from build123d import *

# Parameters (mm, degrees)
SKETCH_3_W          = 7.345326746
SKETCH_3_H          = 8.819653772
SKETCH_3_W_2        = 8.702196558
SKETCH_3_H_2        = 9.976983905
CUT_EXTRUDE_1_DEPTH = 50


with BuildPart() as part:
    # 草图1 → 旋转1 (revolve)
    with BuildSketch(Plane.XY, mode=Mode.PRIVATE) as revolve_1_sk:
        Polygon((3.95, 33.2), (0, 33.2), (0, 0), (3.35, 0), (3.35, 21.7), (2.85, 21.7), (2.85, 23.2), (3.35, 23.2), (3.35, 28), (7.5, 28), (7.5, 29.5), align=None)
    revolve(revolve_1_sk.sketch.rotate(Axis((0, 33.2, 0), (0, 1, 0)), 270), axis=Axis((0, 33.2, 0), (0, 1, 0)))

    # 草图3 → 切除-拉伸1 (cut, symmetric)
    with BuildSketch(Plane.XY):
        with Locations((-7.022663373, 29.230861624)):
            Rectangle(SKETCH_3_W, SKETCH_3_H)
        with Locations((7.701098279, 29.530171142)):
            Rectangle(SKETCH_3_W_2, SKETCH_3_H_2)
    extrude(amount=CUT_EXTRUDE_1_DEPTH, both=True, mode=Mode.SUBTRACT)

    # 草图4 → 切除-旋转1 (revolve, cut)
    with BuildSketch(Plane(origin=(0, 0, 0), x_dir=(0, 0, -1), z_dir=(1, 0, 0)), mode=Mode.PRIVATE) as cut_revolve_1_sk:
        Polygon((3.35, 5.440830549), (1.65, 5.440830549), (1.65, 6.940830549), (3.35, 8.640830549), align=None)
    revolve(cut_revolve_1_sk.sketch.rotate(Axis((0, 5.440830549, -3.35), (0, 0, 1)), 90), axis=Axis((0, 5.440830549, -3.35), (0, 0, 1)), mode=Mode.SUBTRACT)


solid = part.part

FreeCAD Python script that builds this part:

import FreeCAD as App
import Part
import Sketcher
from FreeCAD import Vector
Q = App.Units.Quantity


def add_polygon(sketch, points):
    """Adds a closed chain of lines whose ends are joined by coincident constraints."""
    first, n = sketch.GeometryCount, len(points)
    for a, b in zip(points, points[1:] + points[:1]):
        sketch.addGeometry(Part.LineSegment(App.Vector(*a, 0), App.Vector(*b, 0)), False)
    for i in range(n):
        sketch.addConstraint(Sketcher.Constraint("Coincident", first + i, 2, first + (i + 1) % n, 1))

doc = App.newDocument("Part")
params = doc.addObject("Spreadsheet::Sheet", "Params")
for row, (alias, value) in enumerate([
    ("sketch1_width", "0.5 mm"),
    ("sketch1_height", "33.2 mm"),
    ("sketch1_height2", "21.7 mm"),
    ("sketch1_height3", "1.5 mm"),
    ("sketch1_height4", "4.8 mm"),
    ("revolution_angle", "360 deg"),
    ("pocket1_length", "100 mm"),
    ("sketch3_width", "3.2 mm"),
    ("sketch3_width2", "1.5 mm"),
    ("groove_angle", "360 deg"),
], start=1):
    params.set(f"A{row}", alias)
    params.set(f"B{row}", "=" + value)
    params.setAlias(f"B{row}", alias)

body = doc.addObject("PartDesign::Body", "Body")

sketch1 = body.newObject("Sketcher::SketchObject", "Sketch")
sketch1.AttachmentSupport = (doc.getObject("XY_Plane"), [""])
sketch1.MapMode = "FlatFace"
add_polygon(sketch1, [(4, 33.2), (0, 33.2), (0, 0), (3.4, 0), (3.4, 21.7), (2.9, 21.7), (2.9, 23.2), (3.4, 23.2), (3.4, 28), (7.5, 28), (7.5, 29.5)])
sketch1.addConstraint([
    Sketcher.Constraint("Horizontal", 0),
    Sketcher.Constraint("Vertical", 1),
    Sketcher.Constraint("Horizontal", 2),
    Sketcher.Constraint("Vertical", 3),
    Sketcher.Constraint("Horizontal", 4),
    Sketcher.Constraint("Vertical", 5),
    Sketcher.Constraint("Horizontal", 6),
    Sketcher.Constraint("Vertical", 7),
    Sketcher.Constraint("Horizontal", 8),
    Sketcher.Constraint("Vertical", 9),
    Sketcher.Constraint("Coincident", 1, 2, -1, 1),
    Sketcher.Constraint("Vertical", 3, 2, 6, 2),
    Sketcher.Constraint("Equal", 5, 9),
    Sketcher.Constraint("DistanceX", 4, 2, 4, 1, 0.5),
    Sketcher.Constraint("DistanceY", 1, 2, 1, 1, 33.2),
    Sketcher.Constraint("DistanceY", 3, 1, 3, 2, 21.7),
    Sketcher.Constraint("DistanceY", 5, 1, 5, 2, 1.5),
    Sketcher.Constraint("DistanceY", 7, 1, 7, 2, 4.8),
    Sketcher.Constraint("DistanceX", 0, 2, 0, 1, 3.95),
    Sketcher.Constraint("DistanceX", 2, 1, 2, 2, 3.35),
    Sketcher.Constraint("DistanceX", 8, 1, 8, 2, 4.15),
])
sketch1.setExpression("Constraints[24]", "Params.sketch1_width")
sketch1.setExpression("Constraints[25]", "Params.sketch1_height")
sketch1.setExpression("Constraints[26]", "Params.sketch1_height2")
sketch1.setExpression("Constraints[27]", "Params.sketch1_height3")
sketch1.setExpression("Constraints[28]", "Params.sketch1_height4")
revolution = body.newObject("PartDesign::Revolution", "Revolution")
revolution.Profile = sketch1
revolution.ReferenceAxis = (sketch1, ["V_Axis"])
revolution.setExpression("Angle", "Params.revolution_angle")

sketch2 = body.newObject("Sketcher::SketchObject", "Sketch001")
sketch2.AttachmentSupport = (doc.getObject("XY_Plane"), [""])
sketch2.MapMode = "FlatFace"
add_polygon(sketch2, [(-11, 34), (-11, 25), (-3, 25), (-3, 34)])
add_polygon(sketch2, [(3, 35), (3, 25), (12, 25), (12, 35)])
sketch2.addConstraint([
    Sketcher.Constraint("Vertical", 0),
    Sketcher.Constraint("Horizontal", 1),
    Sketcher.Constraint("Vertical", 2),
    Sketcher.Constraint("Horizontal", 3),
    Sketcher.Constraint("Vertical", 4),
    Sketcher.Constraint("Horizontal", 5),
    Sketcher.Constraint("Vertical", 6),
    Sketcher.Constraint("Horizontal", 7),
    Sketcher.Constraint("DistanceX", 1, 2, 4, 2, 6.7),
    Sketcher.Constraint("DistanceX", 1, 2, -1, 1, 3.35),
    Sketcher.Constraint("DistanceX", 1, 1, 1, 2, 7.345327),
    Sketcher.Constraint("DistanceX", 5, 1, 5, 2, 8.702197),
    Sketcher.Constraint("DistanceY", 0, 2, 0, 1, 8.819654),
    Sketcher.Constraint("DistanceY", 4, 2, 4, 1, 9.976984),
    Sketcher.Constraint("DistanceY", -1, 1, 2, 2, 33.640689),
    Sketcher.Constraint("DistanceY", -1, 1, 4, 2, 24.541679),
])
pocket1 = body.newObject("PartDesign::Pocket", "Pocket")
pocket1.Profile = sketch2
pocket1.setExpression("Length", "Params.pocket1_length")
pocket1.Midplane = True

sketch3 = body.newObject("Sketcher::SketchObject", "Sketch002")
sketch3.AttachmentSupport = (doc.getObject("YZ_Plane"), [""])
sketch3.MapMode = "FlatFace"
add_polygon(sketch3, [(5.4, -1.6), (5.4, -3.4), (8.6, -3.4), (6.9, -1.6)])
sketch3.addGeometry(Part.LineSegment(Vector(5.4, -3.4, 0), Vector(5.4, -1.6, 0)), True)
sketch3.addConstraint([
    Sketcher.Constraint("Vertical", 0),
    Sketcher.Constraint("Horizontal", 1),
    Sketcher.Constraint("Horizontal", 3),
    Sketcher.Constraint("Vertical", 4),
    Sketcher.Constraint("Coincident", 4, 1, 0, 2),
    Sketcher.Constraint("Horizontal", 2, 2, 4, 2),
    Sketcher.Constraint("Angle", 2, Q("135 deg")),
    Sketcher.Constraint("DistanceX", 1, 1, 1, 2, 3.2),
    Sketcher.Constraint("DistanceX", 3, 2, 3, 1, 1.5),
    Sketcher.Constraint("DistanceY", 0, 2, -1, 1, 3.35),
    Sketcher.Constraint("DistanceX", -1, 1, 0, 2, 5.440831),
])
sketch3.setExpression("Constraints[11]", "Params.sketch3_width")
sketch3.setExpression("Constraints[12]", "Params.sketch3_width2")
groove = body.newObject("PartDesign::Groove", "Groove")
groove.Profile = sketch3
groove.ReferenceAxis = (sketch3, ["Axis0"])
groove.setExpression("Angle", "Params.groove_angle")

doc.recompute()
